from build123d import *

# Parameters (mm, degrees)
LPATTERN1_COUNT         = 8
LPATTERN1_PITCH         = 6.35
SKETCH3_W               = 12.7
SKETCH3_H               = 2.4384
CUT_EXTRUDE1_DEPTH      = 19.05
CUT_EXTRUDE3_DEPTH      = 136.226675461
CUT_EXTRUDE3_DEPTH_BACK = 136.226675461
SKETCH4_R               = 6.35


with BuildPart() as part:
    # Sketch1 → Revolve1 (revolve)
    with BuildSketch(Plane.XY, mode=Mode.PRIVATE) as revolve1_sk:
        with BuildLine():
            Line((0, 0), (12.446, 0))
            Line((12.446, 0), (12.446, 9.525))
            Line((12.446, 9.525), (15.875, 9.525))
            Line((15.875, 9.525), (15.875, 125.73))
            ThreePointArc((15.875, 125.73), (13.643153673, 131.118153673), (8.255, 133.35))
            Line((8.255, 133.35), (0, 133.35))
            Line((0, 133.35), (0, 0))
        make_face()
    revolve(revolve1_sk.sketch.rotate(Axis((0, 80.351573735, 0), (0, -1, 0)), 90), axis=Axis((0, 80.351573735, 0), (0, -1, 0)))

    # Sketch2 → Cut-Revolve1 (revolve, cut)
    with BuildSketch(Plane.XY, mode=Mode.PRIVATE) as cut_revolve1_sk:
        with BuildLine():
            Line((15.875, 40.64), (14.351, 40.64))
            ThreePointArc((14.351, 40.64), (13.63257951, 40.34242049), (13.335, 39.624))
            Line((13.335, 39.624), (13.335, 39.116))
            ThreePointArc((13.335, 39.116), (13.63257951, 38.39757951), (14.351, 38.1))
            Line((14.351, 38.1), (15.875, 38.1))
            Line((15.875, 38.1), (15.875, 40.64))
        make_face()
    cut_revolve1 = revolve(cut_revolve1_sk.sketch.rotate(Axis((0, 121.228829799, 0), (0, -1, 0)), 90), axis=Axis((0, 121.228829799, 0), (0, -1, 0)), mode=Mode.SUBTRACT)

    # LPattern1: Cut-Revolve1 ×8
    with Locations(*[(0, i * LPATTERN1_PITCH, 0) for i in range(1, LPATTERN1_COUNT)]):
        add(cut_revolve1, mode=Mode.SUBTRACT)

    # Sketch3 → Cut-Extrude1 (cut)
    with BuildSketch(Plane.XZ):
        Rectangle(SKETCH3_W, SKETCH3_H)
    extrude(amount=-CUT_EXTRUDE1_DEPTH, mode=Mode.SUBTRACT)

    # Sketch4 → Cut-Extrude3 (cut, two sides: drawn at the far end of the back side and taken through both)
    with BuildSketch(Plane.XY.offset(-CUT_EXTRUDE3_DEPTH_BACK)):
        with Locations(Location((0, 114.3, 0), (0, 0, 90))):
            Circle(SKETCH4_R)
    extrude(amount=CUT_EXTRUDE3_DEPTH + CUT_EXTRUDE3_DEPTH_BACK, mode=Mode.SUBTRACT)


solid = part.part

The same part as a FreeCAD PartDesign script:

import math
import FreeCAD as App
import Part
import Sketcher
from FreeCAD import Vector
Q = App.Units.Quantity


def add_polygon(sketch, points):
    """Adds a closed chain of lines whose ends are joined by coincident constraints."""
    first, n = sketch.GeometryCount, len(points)
    for a, b in zip(points, points[1:] + points[:1]):
        sketch.addGeometry(Part.LineSegment(App.Vector(*a, 0), App.Vector(*b, 0)), False)
    for i in range(n):
        sketch.addConstraint(Sketcher.Constraint("Coincident", first + i, 2, first + (i + 1) % n, 1))

doc = App.newDocument("Part")
body = doc.addObject("PartDesign::Body", "Body")

# Sketch on XY plane
sketch1 = body.newObject("Sketcher::SketchObject", "Sketch")
sketch1.AttachmentSupport = (doc.getObject("XY_Plane"), [""])
sketch1.MapMode = "FlatFace"
sketch1.addGeometry([
    Part.LineSegment(Vector(0, 0, 0), Vector(12.4, 0, 0)),  # 0
    Part.LineSegment(Vector(12.4, 0, 0), Vector(12.4, 9.5, 0)),  # 1
    Part.LineSegment(Vector(12.4, 9.5, 0), Vector(15.9, 9.5, 0)),  # 2
    Part.LineSegment(Vector(15.9, 9.5, 0), Vector(15.9, 125.7, 0)),  # 3
    Part.ArcOfCircle(Part.Circle(Vector(8.3, 125.7, 0), Vector(0, 0, 1), 7.6), math.radians(0), math.radians(90)),  # 4
    Part.LineSegment(Vector(8.3, 133.3, 0), Vector(0, 133.3, 0)),  # 5
    Part.LineSegment(Vector(0, 133.3, 0), Vector(0, 0, 0)),  # 6
], False)
sketch1.addConstraint([
    Sketcher.Constraint("Coincident", 0, 2, 1, 1),
    Sketcher.Constraint("Coincident", 1, 2, 2, 1),
    Sketcher.Constraint("Coincident", 2, 2, 3, 1),
    Sketcher.Constraint("Tangent", 3, 2, 4, 1),
    Sketcher.Constraint("Tangent", 4, 2, 5, 1),
    Sketcher.Constraint("Coincident", 5, 2, 6, 1),
    Sketcher.Constraint("Coincident", 6, 2, 0, 1),
    Sketcher.Constraint("Horizontal", 0),
    Sketcher.Constraint("Vertical", 1),
    Sketcher.Constraint("Horizontal", 2),
    Sketcher.Constraint("Vertical", 3),
    Sketcher.Constraint("Horizontal", 5),
    Sketcher.Constraint("Vertical", 6),
    Sketcher.Constraint("Coincident", 6, 2, -1, 1),
    Sketcher.Constraint("Radius", 4, Q("0.3 in")),
    Sketcher.Constraint("DistanceX", 0, 1, 0, 2, Q("0.49 in")),
    Sketcher.Constraint("DistanceY", 6, 2, 6, 1, Q("5.25 in")),
    Sketcher.Constraint("DistanceX", 2, 1, 2, 2, Q("0.135 in")),
    Sketcher.Constraint("DistanceY", 1, 1, 1, 2, Q("0.375 in")),
])
revolution = body.newObject("PartDesign::Revolution", "Revolution")
revolution.Profile = sketch1
revolution.ReferenceAxis = (sketch1, ["V_Axis"])
revolution.Angle = 360

# Sketch on XY plane
sketch2 = body.newObject("Sketcher::SketchObject", "Sketch001")
sketch2.AttachmentSupport = (doc.getObject("XY_Plane"), [""])
sketch2.MapMode = "FlatFace"
sketch2.addGeometry([
    Part.LineSegment(Vector(15.9, 40.6, 0), Vector(14.4, 40.6, 0)),  # 0
    Part.ArcOfCircle(Part.Circle(Vector(14.4, 39.6, 0), Vector(0, 0, 1), 1), math.radians(90), math.radians(180)),  # 1
    Part.LineSegment(Vector(13.3, 39.6, 0), Vector(13.3, 39.1, 0)),  # 2
    Part.ArcOfCircle(Part.Circle(Vector(14.4, 39.1, 0), Vector(0, 0, 1), 1), math.radians(180), math.radians(270)),  # 3
    Part.LineSegment(Vector(14.4, 38.1, 0), Vector(15.9, 38.1, 0)),  # 4
    Part.LineSegment(Vector(15.9, 38.1, 0), Vector(15.9, 40.6, 0)),  # 5
], False)
sketch2.addConstraint([
    Sketcher.Constraint("Tangent", 0, 2, 1, 1),
    Sketcher.Constraint("Tangent", 1, 2, 2, 1),
    Sketcher.Constraint("Tangent", 2, 2, 3, 1),
    Sketcher.Constraint("Tangent", 3, 2, 4, 1),
    Sketcher.Constraint("Coincident", 4, 2, 5, 1),
    Sketcher.Constraint("Coincident", 5, 2, 0, 1),
    Sketcher.Constraint("Horizontal", 0),
    Sketcher.Constraint("Vertical", 2),
    Sketcher.Constraint("Horizontal", 4),
    Sketcher.Constraint("Vertical", 5),
    Sketcher.Constraint("Equal", 1, 3),
    Sketcher.Constraint("Radius", 1, Q("0.04 in")),
    Sketcher.Constraint("DistanceY", 5, 1, 5, 2, Q("0.1 in")),
    Sketcher.Constraint("DistanceX", 0, 2, 0, 1, Q("0.06 in")),
    Sketcher.Constraint("DistanceY", -1, 1, 0, 2, Q("1.6 in")),
    Sketcher.Constraint("DistanceX", -1, 1, 1, 3, Q("0.565 in")),
])
groove = body.newObject("PartDesign::Groove", "Groove")
groove.Profile = sketch2
groove.ReferenceAxis = (sketch2, ["V_Axis"])
groove.Angle = 360
doc.recompute()

linearpattern = body.newObject("PartDesign::LinearPattern", "LinearPattern")
linearpattern.Originals = [groove]
linearpattern.Direction = (doc.getObject("Y_Axis"), [""])
linearpattern.Mode = "offset"
linearpattern.Offset = Q("0.25 in")
linearpattern.Occurrences = 8
body.Tip = linearpattern

# Sketch on XZ plane
sketch3 = body.newObject("Sketcher::SketchObject", "Sketch002")
sketch3.AttachmentSupport = (doc.getObject("XZ_Plane"), [""])
sketch3.MapMode = "FlatFace"
add_polygon(sketch3, [(-6.3, 1.2), (-6.3, -1.2), (6.3, -1.2), (6.3, 1.2)])  # lines 0-3
sketch3.addConstraint([
    Sketcher.Constraint("Vertical", 0),
    Sketcher.Constraint("Horizontal", 1),
    Sketcher.Constraint("Vertical", 2),
    Sketcher.Constraint("Horizontal", 3),
    Sketcher.Constraint("Symmetric", 0, 2, 2, 2, -1, 1),
    Sketcher.Constraint("DistanceX", 1, 1, 1, 2, Q("0.5 in")),
    Sketcher.Constraint("DistanceY", 0, 2, 0, 1, Q("0.096 in")),
])
pocket1 = body.newObject("PartDesign::Pocket", "Pocket")
pocket1.Profile = sketch3
pocket1.Length = Q("0.75 in")

# Sketch on XY plane
sketch4 = body.newObject("Sketcher::SketchObject", "Sketch003")
sketch4.AttachmentSupport = (doc.getObject("XY_Plane"), [""])
sketch4.MapMode = "FlatFace"
sketch4.addGeometry(Part.Circle(Vector(0, 114, 0), Vector(0, 0, 1), 6), False)
sketch4.addConstraint([
    Sketcher.Constraint("PointOnObject", 0, 3, -2),
    Sketcher.Constraint("Diameter", 0, Q("0.5 in")),
    Sketcher.Constraint("DistanceY", -1, 1, 0, 3, Q("4.5 in")),
])
pocket2 = body.newObject("PartDesign::Pocket", "Pocket001")
pocket2.Profile = sketch4
pocket2.Type = "ThroughAll"
pocket2.Midplane = True

doc.recompute()
